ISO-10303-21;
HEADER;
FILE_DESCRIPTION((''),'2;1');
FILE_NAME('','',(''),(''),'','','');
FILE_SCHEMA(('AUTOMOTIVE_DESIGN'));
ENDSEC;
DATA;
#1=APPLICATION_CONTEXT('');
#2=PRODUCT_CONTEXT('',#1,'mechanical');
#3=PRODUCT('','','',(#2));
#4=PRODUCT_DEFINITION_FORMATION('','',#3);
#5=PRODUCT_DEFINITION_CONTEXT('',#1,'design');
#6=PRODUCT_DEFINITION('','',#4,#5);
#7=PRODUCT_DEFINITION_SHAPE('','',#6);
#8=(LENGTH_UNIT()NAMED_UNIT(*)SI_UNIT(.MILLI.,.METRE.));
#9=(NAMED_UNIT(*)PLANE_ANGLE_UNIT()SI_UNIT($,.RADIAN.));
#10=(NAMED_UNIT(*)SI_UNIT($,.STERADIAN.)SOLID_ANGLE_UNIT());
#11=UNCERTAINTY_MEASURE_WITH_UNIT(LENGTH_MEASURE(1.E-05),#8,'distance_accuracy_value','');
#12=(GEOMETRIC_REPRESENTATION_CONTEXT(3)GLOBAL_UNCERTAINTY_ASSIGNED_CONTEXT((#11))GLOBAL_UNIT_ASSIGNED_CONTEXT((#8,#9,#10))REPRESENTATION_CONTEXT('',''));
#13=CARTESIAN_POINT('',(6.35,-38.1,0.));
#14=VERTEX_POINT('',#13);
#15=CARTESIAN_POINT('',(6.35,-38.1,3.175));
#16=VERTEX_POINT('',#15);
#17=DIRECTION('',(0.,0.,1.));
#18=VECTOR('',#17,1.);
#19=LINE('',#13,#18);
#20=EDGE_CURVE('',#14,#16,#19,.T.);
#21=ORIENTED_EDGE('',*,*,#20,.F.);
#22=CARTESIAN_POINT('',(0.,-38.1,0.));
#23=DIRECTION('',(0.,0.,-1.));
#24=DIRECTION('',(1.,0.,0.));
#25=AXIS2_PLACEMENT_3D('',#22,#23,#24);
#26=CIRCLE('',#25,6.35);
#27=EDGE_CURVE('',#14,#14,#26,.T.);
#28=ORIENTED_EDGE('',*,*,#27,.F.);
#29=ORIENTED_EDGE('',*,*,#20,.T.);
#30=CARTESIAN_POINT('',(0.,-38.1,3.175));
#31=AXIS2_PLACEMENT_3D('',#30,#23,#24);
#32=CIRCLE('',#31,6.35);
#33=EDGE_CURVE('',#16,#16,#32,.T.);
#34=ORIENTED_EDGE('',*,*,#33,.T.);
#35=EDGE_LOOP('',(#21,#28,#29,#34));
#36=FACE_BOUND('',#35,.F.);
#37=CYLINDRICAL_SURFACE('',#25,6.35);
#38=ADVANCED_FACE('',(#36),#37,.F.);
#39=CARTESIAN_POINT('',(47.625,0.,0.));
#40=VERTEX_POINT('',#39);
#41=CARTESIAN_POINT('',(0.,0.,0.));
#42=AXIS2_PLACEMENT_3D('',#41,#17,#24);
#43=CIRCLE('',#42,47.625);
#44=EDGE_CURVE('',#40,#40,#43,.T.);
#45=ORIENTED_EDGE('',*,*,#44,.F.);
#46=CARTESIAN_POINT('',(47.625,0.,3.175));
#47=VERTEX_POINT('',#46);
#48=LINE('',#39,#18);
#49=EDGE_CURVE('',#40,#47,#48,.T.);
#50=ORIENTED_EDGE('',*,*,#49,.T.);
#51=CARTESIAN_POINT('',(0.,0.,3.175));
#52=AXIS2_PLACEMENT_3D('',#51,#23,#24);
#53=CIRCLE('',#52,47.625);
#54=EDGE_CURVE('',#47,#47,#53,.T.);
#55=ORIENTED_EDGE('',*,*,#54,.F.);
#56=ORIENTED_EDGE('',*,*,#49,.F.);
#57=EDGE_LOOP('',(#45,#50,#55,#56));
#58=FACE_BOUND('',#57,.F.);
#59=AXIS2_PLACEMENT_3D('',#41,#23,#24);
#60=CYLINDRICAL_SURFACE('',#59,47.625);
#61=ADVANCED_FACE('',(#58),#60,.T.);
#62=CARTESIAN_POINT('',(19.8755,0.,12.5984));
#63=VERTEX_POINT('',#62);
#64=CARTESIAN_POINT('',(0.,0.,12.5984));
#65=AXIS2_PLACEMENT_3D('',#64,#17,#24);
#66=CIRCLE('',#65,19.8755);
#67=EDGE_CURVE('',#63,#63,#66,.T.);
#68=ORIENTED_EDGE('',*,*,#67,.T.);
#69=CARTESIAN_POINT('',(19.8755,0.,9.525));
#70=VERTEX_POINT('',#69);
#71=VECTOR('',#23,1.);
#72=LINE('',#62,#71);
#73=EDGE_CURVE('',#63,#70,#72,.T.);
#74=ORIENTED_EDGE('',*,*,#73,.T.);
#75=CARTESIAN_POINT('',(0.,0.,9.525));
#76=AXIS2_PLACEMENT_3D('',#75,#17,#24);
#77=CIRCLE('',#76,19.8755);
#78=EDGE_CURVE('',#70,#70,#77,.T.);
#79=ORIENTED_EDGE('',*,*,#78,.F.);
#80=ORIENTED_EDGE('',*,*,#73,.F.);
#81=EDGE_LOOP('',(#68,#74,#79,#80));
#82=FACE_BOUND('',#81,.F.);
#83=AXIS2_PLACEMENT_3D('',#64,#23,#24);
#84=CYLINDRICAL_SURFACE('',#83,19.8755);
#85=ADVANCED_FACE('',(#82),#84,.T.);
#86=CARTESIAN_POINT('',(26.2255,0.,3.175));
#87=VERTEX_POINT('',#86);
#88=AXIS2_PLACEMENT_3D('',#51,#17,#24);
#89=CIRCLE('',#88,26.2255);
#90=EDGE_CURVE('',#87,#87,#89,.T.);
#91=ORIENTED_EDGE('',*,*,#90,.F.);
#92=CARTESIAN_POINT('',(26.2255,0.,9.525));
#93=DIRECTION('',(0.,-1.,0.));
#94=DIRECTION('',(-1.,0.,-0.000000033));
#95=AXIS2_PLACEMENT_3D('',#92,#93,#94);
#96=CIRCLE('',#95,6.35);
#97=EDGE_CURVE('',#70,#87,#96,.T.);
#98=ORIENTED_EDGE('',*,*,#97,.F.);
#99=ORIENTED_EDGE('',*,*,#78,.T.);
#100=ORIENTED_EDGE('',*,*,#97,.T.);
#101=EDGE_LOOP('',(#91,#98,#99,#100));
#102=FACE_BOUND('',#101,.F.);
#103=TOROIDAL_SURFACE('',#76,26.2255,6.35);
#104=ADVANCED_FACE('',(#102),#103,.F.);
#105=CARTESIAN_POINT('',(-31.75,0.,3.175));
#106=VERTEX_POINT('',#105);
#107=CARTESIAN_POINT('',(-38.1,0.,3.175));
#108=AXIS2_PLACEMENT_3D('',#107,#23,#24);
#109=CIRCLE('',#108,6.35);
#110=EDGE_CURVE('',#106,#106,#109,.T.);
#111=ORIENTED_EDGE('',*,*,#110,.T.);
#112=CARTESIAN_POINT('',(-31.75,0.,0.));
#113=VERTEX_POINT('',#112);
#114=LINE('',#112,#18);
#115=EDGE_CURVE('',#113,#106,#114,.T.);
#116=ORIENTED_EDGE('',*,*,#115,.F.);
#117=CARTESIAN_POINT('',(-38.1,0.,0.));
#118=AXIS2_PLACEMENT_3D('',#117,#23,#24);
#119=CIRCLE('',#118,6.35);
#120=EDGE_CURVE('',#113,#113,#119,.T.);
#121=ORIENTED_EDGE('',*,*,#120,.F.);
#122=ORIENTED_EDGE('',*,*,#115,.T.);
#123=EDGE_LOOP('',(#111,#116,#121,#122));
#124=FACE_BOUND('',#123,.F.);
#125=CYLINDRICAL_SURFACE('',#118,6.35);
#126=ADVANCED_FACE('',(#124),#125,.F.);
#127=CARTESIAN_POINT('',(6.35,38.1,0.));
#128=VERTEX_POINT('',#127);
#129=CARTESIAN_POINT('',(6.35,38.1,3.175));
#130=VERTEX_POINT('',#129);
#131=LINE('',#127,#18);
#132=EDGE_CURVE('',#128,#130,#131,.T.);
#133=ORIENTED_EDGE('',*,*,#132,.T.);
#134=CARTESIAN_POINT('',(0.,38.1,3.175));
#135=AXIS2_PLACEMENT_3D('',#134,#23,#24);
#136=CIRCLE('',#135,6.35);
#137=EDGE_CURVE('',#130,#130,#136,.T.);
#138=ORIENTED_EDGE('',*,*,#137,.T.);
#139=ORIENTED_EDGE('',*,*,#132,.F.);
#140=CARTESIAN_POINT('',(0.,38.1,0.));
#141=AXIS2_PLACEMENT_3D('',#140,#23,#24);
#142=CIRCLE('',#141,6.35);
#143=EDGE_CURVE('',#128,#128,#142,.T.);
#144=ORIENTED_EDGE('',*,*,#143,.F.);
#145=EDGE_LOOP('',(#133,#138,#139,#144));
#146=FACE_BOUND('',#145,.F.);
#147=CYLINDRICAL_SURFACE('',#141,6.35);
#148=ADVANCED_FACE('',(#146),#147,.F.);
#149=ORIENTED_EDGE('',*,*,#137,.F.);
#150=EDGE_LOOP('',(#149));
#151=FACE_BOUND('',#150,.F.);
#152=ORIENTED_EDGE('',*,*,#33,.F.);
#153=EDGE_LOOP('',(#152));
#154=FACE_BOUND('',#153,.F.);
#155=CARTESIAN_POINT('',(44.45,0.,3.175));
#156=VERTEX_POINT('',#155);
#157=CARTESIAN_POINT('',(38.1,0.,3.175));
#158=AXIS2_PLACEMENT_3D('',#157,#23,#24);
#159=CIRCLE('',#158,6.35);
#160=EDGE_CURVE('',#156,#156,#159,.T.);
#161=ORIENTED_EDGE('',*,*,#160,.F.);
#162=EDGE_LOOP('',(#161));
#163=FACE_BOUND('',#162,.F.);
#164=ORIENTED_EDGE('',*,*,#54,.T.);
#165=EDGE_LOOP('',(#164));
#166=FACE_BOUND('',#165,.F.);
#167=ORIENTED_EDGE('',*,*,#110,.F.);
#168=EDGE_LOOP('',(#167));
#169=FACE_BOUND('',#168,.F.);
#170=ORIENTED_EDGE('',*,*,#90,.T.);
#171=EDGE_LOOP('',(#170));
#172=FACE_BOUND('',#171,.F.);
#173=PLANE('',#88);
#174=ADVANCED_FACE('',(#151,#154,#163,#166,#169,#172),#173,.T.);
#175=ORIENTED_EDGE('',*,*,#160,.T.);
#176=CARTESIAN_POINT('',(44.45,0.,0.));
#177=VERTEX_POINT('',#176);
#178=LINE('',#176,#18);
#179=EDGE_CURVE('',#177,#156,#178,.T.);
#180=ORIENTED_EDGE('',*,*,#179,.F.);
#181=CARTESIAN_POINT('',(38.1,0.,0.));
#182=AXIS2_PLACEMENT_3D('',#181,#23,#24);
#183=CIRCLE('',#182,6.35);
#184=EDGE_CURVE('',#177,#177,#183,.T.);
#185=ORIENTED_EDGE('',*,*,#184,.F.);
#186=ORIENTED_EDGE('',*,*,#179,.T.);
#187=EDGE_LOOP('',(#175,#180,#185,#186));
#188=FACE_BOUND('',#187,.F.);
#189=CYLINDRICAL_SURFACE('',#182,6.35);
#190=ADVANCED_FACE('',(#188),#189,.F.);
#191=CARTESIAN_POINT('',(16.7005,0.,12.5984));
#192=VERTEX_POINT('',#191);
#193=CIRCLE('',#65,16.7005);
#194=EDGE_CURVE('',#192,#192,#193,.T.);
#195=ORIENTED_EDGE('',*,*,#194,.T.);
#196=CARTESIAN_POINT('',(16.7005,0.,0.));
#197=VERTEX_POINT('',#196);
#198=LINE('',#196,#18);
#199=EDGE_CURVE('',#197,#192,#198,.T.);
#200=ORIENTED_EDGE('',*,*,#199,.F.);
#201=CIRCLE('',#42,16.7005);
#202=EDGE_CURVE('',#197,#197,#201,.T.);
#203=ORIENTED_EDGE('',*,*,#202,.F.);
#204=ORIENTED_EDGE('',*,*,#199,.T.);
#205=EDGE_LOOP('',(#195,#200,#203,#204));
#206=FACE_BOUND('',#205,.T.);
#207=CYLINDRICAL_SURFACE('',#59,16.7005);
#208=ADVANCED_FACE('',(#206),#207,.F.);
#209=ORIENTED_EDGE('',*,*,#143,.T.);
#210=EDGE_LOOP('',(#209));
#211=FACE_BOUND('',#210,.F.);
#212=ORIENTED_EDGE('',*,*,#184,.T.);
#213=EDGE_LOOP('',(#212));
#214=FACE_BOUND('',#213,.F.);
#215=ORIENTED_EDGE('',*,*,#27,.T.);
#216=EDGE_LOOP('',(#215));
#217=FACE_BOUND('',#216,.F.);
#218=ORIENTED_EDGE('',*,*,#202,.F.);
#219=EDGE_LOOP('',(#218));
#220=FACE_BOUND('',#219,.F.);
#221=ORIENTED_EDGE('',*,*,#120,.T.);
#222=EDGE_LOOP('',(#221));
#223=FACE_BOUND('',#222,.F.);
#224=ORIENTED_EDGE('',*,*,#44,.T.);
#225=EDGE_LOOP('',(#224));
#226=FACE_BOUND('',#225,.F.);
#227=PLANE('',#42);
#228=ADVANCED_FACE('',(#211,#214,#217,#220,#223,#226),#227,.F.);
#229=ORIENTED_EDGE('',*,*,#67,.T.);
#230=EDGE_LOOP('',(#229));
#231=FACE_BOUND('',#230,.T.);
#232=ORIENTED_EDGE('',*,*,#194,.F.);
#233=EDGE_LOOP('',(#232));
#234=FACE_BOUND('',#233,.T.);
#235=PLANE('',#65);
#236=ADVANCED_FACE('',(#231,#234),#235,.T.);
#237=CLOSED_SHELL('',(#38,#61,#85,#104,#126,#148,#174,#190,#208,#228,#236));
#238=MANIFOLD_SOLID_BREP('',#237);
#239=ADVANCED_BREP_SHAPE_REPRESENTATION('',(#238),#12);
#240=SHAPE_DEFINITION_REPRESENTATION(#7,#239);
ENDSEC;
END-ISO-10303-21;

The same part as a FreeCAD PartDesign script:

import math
import FreeCAD as App
import Part
import Sketcher

V = App.Vector
Q = App.Units.Quantity

doc = App.newDocument("Part")
body = doc.addObject("PartDesign::Body", "Body")

# Sketch on XY plane
sketch1 = body.newObject("Sketcher::SketchObject", "Sketch")
sketch1.AttachmentSupport = (doc.getObject("XY_Plane"), [""])
sketch1.MapMode = "FlatFace"
sketch1.addGeometry([
    Part.Circle(V(0, 0, 0), V(0, 0, 1), 48),
    Part.Circle(V(0, 0, 0), V(0, 0, 1), 17),
], False)
sketch1.addConstraint([
    Sketcher.Constraint("Coincident", 0, 3, -1, 1),
    Sketcher.Constraint("Coincident", 1, 3, -1, 1),
    Sketcher.Constraint("Diameter", 0, Q("3.75 in")),
    Sketcher.Constraint("Diameter", 1, Q("1.315 in")),
])
pad1 = body.newObject("PartDesign::Pad", "Pad")
pad1.Profile = sketch1
pad1.Length = Q("0.496 in")

# Sketch on XZ plane
sketch2 = body.newObject("Sketcher::SketchObject", "Sketch001")
sketch2.AttachmentSupport = (doc.getObject("XZ_Plane"), [""])
sketch2.MapMode = "FlatFace"
sketch2.addGeometry([
    Part.LineSegment(V(50.8, 3.2, 0), V(50.8, 12.6, 0)),  # 0
    Part.LineSegment(V(50.8, 12.6, 0), V(19.9, 12.6, 0)),  # 1
    Part.LineSegment(V(19.9, 12.6, 0), V(19.9, 9.5, 0)),  # 2
    Part.ArcOfCircle(Part.Circle(V(26.2, 9.5, 0), V(0, 0, 1), 6.4), math.radians(-180), math.radians(-90)),  # 3
    Part.LineSegment(V(26.2, 3.2, 0), V(50.8, 3.2, 0)),  # 4
], False)
sketch2.addConstraint([
    Sketcher.Constraint("Coincident", 0, 2, 1, 1),
    Sketcher.Constraint("Coincident", 1, 2, 2, 1),
    Sketcher.Constraint("Tangent", 2, 2, 3, 1),
    Sketcher.Constraint("Tangent", 3, 2, 4, 1),
    Sketcher.Constraint("Coincident", 4, 2, 0, 1),
    Sketcher.Constraint("Vertical", 0),
    Sketcher.Constraint("Horizontal", 1),
    Sketcher.Constraint("Vertical", 2),
    Sketcher.Constraint("Horizontal", 4),
    Sketcher.Constraint("Radius", 3, Q("0.25 in")),
    Sketcher.Constraint("DistanceX", -1, 1, 0, 2, Q("2 in")),
    Sketcher.Constraint("DistanceY", 0, 1, 0, 2, Q("0.371 in")),
    Sketcher.Constraint("DistanceX", 1, 2, 1, 1, Q("1.2175 in")),
    Sketcher.Constraint("DistanceY", -1, 1, 3, 3, Q("0.375 in")),
])
groove = body.newObject("PartDesign::Groove", "Groove")
groove.Profile = sketch2
groove.ReferenceAxis = (sketch2, ["V_Axis"])
groove.Angle = 360

# Sketch on XY plane
sketch3 = body.newObject("Sketcher::SketchObject", "Sketch002")
sketch3.AttachmentSupport = (doc.getObject("XY_Plane"), [""])
sketch3.MapMode = "FlatFace"
sketch3.addGeometry([
    Part.Circle(V(0, -38, 0), V(0, 0, 1), 6),
    Part.Circle(V(0, 38, 0), V(0, 0, 1), 6),
    Part.Circle(V(-38, 0, 0), V(0, 0, 1), 6),
    Part.Circle(V(38, 0, 0), V(0, 0, 1), 6),
], False)
sketch3.addConstraint([
    Sketcher.Constraint("Equal", 0, 1),
    Sketcher.Constraint("Equal", 1, 2),
    Sketcher.Constraint("Equal", 2, 3),
    Sketcher.Constraint("Symmetric", 0, 3, 1, 3, -1, 1),
    Sketcher.Constraint("Symmetric", 2, 3, 3, 3, -1, 1),
    Sketcher.Constraint("PointOnObject", 0, 3, -2),
    Sketcher.Constraint("PointOnObject", 2, 3, -1),
    Sketcher.Constraint("Diameter", 0, Q("0.5 in")),
    Sketcher.Constraint("DistanceY", 0, 3, 1, 3, Q("3 in")),
    Sketcher.Constraint("DistanceX", 2, 3, 3, 3, Q("3 in")),
])
pocket1 = body.newObject("PartDesign::Pocket", "Pocket")
pocket1.Profile = sketch3
pocket1.Type = "ThroughAll"
pocket1.Reversed = True

doc.recompute()
